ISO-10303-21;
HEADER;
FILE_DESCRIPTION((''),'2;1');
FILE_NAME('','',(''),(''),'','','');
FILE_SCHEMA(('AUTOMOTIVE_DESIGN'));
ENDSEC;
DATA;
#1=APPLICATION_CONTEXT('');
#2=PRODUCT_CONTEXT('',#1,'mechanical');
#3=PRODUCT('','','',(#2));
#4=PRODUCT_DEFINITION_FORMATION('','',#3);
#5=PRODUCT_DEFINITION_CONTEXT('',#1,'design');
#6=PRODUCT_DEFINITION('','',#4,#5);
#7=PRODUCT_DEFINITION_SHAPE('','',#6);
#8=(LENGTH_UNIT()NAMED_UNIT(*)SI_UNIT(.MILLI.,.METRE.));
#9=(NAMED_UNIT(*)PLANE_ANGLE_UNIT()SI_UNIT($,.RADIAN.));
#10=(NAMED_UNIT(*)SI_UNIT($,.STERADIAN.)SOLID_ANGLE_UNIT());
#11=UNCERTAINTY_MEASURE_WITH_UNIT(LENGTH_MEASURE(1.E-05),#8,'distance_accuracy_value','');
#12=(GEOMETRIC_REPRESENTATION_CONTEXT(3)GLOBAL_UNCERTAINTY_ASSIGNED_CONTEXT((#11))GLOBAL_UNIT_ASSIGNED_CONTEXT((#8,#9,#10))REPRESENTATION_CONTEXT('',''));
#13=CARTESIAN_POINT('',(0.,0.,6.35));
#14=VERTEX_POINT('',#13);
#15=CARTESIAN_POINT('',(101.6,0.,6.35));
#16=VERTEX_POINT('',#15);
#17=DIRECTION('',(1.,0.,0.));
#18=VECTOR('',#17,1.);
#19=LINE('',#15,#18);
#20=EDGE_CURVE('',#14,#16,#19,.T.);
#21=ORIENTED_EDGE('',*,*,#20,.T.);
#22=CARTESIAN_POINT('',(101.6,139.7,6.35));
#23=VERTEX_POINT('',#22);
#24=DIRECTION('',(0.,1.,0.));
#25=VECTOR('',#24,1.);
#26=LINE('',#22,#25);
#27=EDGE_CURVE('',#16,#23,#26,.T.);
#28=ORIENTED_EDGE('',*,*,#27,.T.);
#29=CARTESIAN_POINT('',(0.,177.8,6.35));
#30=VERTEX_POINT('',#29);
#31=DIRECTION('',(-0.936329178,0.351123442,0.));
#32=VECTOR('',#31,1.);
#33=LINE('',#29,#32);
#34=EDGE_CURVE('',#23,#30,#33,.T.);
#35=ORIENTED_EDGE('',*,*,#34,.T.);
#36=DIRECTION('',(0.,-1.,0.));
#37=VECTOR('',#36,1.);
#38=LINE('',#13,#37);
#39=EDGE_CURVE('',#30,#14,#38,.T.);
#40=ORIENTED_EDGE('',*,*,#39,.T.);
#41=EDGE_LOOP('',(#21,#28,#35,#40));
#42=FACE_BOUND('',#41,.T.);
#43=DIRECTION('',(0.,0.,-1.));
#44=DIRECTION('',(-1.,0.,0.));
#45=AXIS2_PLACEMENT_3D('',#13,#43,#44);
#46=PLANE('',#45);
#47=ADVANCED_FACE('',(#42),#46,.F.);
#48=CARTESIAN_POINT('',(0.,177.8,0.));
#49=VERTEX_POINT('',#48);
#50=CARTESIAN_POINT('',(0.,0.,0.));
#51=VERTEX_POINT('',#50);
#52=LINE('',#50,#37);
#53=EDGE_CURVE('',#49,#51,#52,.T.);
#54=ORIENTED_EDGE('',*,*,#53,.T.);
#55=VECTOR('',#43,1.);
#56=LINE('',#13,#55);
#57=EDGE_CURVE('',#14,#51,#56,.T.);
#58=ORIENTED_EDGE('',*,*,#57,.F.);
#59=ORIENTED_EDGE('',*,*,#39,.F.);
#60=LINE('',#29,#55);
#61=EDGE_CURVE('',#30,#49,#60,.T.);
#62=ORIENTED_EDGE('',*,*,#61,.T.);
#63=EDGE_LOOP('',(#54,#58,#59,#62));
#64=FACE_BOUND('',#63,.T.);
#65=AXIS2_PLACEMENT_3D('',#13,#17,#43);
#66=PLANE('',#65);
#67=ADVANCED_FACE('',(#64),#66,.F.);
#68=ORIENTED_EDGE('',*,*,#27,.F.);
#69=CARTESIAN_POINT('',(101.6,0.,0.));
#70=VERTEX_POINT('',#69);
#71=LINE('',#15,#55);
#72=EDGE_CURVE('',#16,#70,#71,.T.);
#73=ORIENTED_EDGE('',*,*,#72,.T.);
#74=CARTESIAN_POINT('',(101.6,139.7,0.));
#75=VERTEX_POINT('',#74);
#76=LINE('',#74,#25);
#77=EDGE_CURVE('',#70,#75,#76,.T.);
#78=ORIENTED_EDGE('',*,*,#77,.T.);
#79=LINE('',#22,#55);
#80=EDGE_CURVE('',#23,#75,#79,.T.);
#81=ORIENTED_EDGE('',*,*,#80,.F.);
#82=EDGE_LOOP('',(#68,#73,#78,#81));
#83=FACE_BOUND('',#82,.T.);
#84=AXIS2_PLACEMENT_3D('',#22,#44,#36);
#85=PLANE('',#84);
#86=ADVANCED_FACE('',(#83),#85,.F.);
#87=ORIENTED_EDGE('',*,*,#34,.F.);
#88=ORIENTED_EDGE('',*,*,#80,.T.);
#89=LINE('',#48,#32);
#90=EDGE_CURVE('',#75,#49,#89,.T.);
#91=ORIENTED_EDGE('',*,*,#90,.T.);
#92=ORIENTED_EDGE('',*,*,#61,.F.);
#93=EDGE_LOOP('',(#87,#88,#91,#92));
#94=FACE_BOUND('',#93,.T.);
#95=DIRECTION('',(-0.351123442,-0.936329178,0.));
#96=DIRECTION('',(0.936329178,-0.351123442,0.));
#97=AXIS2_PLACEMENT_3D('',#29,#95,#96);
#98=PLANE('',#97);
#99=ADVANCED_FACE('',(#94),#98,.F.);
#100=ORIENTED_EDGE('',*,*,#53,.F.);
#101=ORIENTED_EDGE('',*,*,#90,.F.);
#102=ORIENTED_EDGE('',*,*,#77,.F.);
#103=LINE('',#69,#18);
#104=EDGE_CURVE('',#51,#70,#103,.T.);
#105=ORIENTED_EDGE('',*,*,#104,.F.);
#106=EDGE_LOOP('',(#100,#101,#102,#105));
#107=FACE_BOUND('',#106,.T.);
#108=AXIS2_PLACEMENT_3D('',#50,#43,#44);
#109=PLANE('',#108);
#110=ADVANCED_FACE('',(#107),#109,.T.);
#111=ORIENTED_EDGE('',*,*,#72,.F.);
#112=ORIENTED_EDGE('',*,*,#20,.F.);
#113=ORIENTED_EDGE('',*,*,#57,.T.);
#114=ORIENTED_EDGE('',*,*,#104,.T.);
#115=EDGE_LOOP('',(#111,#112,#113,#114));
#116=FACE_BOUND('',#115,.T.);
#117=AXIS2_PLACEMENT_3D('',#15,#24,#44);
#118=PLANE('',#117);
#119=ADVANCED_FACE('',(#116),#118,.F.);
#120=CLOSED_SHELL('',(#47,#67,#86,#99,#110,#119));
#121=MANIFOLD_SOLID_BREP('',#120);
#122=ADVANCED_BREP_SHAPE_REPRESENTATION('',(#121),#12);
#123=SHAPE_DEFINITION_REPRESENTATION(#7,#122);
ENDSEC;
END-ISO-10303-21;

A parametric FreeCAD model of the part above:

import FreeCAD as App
import Part
import Sketcher

V = App.Vector
Q = App.Units.Quantity

doc = App.newDocument("Part")
body = doc.addObject("PartDesign::Body", "Body")

# Sketch on XY plane
sketch1 = body.newObject("Sketcher::SketchObject", "Sketch")
sketch1.AttachmentSupport = (doc.getObject("XY_Plane"), [""])
sketch1.MapMode = "FlatFace"
sketch1.addGeometry(Part.LineSegment(V(0, 177.8, 0), V(0, 0, 0)), False)
sketch1.addGeometry(Part.LineSegment(V(0, 0, 0), V(101.6, 0, 0)), False)
sketch1.addGeometry(Part.LineSegment(V(101.6, 0, 0), V(101.6, 139.7, 0)), False)
sketch1.addGeometry(Part.LineSegment(V(101.6, 139.7, 0), V(0, 177.8, 0)), False)
sketch1.addConstraint(Sketcher.Constraint("Coincident", 0, 2, 1, 1))
sketch1.addConstraint(Sketcher.Constraint("Coincident", 1, 2, 2, 1))
sketch1.addConstraint(Sketcher.Constraint("Coincident", 2, 2, 3, 1))
sketch1.addConstraint(Sketcher.Constraint("Coincident", 3, 2, 0, 1))
sketch1.addConstraint(Sketcher.Constraint("Vertical", 0))
sketch1.addConstraint(Sketcher.Constraint("Horizontal", 1))
sketch1.addConstraint(Sketcher.Constraint("Vertical", 2))
sketch1.addConstraint(Sketcher.Constraint("Coincident", 0, 2, -1, 1))
sketch1.addConstraint(Sketcher.Constraint("DistanceX", 1, 1, 1, 2, Q("4 in")))
sketch1.addConstraint(Sketcher.Constraint("DistanceY", 0, 2, 0, 1, Q("7 in")))
sketch1.addConstraint(Sketcher.Constraint("DistanceY", 2, 1, 2, 2, Q("5.5 in")))
pad1 = body.newObject("PartDesign::Pad", "Pad")
pad1.Profile = sketch1
pad1.Length = Q("0.25 in")

doc.recompute()
